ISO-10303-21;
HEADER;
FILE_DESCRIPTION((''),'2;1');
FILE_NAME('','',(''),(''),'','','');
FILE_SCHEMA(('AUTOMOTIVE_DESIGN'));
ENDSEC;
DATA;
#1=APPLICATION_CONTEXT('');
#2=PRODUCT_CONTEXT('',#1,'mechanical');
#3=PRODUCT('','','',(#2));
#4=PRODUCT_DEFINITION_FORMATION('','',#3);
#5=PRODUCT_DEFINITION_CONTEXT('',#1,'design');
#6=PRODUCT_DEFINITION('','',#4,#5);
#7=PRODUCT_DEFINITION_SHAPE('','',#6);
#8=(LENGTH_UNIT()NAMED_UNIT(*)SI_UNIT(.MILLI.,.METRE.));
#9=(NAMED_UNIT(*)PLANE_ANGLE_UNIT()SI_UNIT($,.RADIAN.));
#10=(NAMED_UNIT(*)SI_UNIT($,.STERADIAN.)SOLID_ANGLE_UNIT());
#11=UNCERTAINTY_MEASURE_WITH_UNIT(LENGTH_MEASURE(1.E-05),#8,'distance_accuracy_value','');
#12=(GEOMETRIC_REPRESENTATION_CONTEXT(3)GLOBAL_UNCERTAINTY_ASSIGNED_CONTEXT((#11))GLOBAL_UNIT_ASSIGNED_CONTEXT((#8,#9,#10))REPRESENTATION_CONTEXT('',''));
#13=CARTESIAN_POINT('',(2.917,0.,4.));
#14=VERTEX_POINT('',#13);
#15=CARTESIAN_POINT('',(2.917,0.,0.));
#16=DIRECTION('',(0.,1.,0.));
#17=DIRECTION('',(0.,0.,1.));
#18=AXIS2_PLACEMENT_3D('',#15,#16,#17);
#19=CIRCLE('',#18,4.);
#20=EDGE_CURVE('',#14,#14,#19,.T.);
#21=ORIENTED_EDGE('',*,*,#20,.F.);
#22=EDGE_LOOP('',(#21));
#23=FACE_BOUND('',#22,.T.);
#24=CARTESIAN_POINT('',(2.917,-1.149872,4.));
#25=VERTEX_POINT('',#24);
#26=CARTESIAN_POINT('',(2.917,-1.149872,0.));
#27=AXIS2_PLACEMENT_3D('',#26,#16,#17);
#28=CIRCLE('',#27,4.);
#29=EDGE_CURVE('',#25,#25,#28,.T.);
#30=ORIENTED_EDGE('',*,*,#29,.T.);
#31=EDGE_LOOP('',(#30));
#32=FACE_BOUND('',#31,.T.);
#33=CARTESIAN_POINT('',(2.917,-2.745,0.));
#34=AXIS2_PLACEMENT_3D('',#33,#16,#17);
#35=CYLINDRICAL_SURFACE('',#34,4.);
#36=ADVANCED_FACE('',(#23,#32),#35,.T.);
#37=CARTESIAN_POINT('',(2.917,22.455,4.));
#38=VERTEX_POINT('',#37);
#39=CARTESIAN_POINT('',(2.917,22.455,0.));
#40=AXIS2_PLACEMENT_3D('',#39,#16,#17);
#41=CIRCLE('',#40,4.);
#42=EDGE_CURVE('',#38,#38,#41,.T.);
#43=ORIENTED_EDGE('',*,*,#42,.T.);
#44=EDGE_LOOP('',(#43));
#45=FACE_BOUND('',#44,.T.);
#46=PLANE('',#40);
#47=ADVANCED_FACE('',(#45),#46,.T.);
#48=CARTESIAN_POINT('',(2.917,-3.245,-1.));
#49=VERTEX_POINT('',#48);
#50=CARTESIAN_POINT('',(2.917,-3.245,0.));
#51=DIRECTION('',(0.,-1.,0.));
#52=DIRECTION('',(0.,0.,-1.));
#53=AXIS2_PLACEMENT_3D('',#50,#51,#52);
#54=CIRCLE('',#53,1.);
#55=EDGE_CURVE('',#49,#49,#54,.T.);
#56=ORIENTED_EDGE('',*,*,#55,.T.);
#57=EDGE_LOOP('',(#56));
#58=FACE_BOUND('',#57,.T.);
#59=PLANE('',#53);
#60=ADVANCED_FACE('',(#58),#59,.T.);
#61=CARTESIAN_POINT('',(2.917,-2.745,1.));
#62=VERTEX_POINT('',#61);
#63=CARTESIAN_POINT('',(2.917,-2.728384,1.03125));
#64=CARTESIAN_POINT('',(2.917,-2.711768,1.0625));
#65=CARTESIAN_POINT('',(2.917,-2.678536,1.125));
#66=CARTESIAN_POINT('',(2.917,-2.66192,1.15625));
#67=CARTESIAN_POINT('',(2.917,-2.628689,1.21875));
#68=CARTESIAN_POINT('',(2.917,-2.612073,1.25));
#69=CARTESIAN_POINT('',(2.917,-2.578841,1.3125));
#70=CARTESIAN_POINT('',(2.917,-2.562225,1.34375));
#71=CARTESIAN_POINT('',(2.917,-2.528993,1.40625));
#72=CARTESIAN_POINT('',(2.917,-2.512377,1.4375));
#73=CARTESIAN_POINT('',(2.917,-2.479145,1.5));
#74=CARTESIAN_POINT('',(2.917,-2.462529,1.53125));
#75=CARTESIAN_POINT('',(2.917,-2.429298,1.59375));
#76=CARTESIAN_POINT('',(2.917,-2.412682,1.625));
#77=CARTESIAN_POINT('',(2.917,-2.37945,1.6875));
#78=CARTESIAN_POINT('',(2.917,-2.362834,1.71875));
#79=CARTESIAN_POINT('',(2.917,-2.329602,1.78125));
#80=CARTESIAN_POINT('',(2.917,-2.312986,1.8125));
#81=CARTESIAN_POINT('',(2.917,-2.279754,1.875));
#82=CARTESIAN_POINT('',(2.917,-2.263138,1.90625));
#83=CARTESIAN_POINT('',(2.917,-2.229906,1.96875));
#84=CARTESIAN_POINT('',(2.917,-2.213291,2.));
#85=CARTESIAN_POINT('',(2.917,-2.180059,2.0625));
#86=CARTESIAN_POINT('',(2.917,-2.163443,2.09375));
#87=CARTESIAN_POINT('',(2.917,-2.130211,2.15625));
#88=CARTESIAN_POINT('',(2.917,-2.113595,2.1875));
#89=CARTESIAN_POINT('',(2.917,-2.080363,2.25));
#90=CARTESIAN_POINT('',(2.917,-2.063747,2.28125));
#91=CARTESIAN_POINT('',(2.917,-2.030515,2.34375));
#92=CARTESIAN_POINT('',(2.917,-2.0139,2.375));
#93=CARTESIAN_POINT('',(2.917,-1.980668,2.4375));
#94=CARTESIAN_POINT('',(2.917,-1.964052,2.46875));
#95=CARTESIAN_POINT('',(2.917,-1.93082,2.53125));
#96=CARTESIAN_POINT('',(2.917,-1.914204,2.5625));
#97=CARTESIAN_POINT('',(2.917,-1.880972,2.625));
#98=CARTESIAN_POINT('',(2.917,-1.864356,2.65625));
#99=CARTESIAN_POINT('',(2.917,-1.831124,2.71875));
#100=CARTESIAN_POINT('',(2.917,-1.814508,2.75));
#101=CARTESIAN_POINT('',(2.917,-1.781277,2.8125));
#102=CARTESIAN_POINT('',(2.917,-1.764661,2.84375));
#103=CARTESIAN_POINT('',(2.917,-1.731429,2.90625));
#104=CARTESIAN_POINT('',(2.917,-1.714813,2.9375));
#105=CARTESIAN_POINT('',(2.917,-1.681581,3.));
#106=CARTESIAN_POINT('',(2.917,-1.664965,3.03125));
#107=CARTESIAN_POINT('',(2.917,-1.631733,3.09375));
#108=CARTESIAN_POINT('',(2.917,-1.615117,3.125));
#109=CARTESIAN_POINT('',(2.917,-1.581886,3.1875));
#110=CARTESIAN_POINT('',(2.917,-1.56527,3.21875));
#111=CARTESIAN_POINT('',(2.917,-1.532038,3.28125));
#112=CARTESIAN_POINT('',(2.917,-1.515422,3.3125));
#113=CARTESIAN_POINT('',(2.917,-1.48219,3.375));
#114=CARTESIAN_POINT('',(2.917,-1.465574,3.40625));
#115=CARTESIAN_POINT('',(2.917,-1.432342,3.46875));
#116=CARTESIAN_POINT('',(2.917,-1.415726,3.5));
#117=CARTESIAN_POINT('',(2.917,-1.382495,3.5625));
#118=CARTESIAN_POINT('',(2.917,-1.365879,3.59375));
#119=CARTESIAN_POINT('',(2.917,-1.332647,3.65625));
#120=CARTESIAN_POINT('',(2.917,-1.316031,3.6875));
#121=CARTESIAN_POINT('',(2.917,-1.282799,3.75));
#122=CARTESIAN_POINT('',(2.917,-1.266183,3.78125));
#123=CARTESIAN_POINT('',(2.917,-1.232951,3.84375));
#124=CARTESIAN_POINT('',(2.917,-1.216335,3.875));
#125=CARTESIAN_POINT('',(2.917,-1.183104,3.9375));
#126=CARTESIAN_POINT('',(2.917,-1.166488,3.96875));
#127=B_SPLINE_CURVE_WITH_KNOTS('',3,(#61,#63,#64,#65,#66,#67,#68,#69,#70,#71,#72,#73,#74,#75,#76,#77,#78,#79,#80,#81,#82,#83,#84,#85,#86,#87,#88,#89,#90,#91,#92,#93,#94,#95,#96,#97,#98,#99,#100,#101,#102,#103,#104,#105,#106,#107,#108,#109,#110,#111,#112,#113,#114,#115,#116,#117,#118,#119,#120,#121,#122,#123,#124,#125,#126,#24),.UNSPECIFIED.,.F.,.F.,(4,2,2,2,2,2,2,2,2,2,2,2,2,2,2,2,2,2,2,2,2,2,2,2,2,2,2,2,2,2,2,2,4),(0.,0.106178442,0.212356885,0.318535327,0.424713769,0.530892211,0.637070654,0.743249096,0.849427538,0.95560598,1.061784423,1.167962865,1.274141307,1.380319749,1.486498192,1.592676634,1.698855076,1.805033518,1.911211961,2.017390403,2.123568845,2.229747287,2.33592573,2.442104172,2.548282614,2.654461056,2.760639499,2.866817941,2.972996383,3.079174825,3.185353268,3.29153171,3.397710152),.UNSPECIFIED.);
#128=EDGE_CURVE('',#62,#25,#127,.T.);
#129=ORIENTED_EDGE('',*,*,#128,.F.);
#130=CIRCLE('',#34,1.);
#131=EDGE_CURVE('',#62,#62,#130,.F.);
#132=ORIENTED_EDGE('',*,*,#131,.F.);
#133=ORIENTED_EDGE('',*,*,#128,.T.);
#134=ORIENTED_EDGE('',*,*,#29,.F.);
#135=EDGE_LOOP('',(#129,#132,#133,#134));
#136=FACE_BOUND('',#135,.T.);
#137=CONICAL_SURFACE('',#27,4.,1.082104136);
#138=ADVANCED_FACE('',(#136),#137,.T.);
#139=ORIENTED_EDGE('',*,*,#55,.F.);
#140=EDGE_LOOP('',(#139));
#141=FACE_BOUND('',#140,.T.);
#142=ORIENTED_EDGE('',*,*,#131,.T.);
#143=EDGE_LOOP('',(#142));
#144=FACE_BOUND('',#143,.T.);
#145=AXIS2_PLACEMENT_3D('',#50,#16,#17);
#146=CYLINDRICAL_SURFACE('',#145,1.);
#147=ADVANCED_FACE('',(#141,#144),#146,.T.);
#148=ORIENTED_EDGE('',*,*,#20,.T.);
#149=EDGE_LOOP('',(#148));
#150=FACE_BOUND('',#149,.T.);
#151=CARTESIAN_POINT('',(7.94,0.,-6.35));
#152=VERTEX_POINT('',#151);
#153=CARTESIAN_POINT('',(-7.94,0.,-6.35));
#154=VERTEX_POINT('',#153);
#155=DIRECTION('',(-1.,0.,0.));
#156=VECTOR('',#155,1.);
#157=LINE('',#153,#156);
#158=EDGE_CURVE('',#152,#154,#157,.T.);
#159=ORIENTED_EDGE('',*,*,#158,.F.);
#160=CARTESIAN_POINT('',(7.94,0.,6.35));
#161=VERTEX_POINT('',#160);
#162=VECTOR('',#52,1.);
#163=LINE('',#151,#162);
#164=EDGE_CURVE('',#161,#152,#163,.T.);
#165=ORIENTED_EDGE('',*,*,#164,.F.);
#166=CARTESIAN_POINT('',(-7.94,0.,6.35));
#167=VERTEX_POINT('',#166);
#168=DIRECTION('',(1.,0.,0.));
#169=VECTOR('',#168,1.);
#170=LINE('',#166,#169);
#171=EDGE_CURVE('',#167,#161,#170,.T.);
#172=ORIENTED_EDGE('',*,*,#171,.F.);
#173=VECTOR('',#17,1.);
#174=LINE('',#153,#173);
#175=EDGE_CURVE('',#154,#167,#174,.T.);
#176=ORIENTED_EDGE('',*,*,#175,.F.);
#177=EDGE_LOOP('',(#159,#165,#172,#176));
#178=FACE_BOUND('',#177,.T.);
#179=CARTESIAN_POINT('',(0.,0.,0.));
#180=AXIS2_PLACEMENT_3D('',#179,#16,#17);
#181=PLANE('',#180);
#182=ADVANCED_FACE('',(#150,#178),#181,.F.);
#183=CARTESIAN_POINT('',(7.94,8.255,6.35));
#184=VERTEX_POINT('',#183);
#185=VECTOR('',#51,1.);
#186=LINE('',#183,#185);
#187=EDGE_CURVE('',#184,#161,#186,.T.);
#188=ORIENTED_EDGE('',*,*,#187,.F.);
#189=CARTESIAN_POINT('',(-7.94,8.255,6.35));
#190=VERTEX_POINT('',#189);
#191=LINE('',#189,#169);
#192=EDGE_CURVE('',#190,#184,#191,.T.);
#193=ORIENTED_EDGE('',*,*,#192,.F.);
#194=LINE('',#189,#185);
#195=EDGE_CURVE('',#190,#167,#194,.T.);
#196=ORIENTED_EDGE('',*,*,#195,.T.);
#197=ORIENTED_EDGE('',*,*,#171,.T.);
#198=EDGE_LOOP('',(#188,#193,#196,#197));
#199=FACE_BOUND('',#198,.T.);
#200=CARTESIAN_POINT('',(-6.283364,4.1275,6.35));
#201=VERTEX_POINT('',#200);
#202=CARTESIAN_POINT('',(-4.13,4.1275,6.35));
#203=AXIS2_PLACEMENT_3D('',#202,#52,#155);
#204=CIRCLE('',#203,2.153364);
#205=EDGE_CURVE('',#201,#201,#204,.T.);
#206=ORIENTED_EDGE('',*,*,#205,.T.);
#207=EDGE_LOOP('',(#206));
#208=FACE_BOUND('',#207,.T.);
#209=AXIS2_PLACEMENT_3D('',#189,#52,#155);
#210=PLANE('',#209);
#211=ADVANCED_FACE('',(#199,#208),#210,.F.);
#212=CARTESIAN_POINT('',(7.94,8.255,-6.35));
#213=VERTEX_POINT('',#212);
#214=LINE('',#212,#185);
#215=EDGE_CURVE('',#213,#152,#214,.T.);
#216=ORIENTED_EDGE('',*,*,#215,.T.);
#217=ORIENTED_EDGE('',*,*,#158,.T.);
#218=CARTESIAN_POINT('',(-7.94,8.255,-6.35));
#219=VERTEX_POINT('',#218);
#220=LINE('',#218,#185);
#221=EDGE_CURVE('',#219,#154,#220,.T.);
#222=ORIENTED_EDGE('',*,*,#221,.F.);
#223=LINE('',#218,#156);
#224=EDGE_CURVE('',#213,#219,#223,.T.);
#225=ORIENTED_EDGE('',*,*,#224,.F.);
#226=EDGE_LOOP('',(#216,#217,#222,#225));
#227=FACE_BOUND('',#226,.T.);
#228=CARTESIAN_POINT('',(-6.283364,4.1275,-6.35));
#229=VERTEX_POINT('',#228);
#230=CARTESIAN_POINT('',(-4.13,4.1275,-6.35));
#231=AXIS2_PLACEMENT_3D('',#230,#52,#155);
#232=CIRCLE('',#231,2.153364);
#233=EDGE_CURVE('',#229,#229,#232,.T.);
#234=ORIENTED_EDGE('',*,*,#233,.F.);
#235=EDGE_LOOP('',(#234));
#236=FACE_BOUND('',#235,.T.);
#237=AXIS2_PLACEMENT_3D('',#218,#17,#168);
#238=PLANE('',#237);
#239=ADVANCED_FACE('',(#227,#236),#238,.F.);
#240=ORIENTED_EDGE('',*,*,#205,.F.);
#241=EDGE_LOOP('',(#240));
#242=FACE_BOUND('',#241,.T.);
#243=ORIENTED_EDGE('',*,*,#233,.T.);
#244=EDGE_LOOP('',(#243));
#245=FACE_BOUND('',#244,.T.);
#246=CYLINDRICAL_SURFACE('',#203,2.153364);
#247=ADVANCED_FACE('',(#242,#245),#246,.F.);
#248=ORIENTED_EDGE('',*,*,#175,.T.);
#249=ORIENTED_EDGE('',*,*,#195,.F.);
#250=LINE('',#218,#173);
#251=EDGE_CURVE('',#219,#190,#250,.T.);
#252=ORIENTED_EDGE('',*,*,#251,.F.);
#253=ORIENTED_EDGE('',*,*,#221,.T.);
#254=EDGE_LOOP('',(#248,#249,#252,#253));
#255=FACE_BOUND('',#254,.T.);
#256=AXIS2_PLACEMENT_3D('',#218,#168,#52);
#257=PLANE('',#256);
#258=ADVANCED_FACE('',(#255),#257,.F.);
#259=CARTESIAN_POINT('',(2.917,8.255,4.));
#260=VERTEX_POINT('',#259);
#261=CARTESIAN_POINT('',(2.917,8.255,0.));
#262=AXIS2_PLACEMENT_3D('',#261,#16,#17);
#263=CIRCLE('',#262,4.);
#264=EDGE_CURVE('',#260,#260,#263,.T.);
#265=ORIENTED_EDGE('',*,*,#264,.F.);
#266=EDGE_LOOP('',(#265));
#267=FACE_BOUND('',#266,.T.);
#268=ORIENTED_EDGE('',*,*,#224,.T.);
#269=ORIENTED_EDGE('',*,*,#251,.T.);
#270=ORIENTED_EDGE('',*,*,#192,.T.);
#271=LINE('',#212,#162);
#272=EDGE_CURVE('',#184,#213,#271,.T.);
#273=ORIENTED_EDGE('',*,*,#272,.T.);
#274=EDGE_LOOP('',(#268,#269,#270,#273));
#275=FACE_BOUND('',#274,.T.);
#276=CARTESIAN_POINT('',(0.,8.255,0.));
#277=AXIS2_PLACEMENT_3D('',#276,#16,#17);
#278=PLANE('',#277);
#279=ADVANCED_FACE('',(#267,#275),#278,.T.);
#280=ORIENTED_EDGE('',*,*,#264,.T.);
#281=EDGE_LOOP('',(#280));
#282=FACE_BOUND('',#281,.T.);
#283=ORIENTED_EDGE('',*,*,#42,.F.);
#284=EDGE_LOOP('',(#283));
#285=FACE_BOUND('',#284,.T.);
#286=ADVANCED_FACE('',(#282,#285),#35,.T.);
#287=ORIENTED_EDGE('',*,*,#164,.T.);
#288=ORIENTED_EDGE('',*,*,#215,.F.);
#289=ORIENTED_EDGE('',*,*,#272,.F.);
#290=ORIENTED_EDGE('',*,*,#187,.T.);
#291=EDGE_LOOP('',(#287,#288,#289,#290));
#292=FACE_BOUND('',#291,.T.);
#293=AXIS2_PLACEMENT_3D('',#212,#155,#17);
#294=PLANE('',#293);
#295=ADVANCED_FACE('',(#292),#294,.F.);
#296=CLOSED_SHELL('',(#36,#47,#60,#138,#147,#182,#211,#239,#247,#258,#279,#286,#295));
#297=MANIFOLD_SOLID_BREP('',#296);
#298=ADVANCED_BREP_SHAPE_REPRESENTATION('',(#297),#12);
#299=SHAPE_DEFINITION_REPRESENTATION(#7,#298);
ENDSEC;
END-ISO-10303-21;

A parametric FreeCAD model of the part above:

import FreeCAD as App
import Part
import Sketcher

V = App.Vector
Q = App.Units.Quantity


def edges_at(feature, points):
    """Names of the edges that pass closest to the given points."""
    edges = feature.Shape.Edges
    near = lambda p: min(range(len(edges)), key=lambda i: edges[i].distToShape(Part.Vertex(*p))[0])
    return sorted({f"Edge{near(p) + 1}" for p in points})


def add_polygon(sketch, points):
    """Adds a closed chain of lines whose ends are joined by coincident constraints."""
    first, n = sketch.GeometryCount, len(points)
    for a, b in zip(points, points[1:] + points[:1]):
        sketch.addGeometry(Part.LineSegment(App.Vector(*a, 0), App.Vector(*b, 0)), False)
    for i in range(n):
        sketch.addConstraint(Sketcher.Constraint("Coincident", first + i, 2, first + (i + 1) % n, 1))

doc = App.newDocument("Part")
body = doc.addObject("PartDesign::Body", "Body")

sketch1 = body.newObject("Sketcher::SketchObject", "Sketch")
sketch1.AttachmentSupport = (doc.getObject("XZ_Plane"), [""])
sketch1.MapMode = "FlatFace"
add_polygon(sketch1, [(-7.94, -6.35), (-7.94, 6.35), (7.94, 6.35), (7.94, -6.35)])
sketch1.addConstraint(Sketcher.Constraint("Vertical", 0))
sketch1.addConstraint(Sketcher.Constraint("Horizontal", 1))
sketch1.addConstraint(Sketcher.Constraint("Vertical", 2))
sketch1.addConstraint(Sketcher.Constraint("Horizontal", 3))
sketch1.addConstraint(Sketcher.Constraint("Symmetric", 0, 2, 2, 2, -1, 1))
sketch1.addConstraint(Sketcher.Constraint("DistanceY", 0, 1, 0, 2, Q("12.7 mm")))
sketch1.addConstraint(Sketcher.Constraint("DistanceX", 1, 1, 1, 2, Q("15.88 mm")))
pad1 = body.newObject("PartDesign::Pad", "Pad")
pad1.Profile = sketch1
pad1.Length = 8.255
pad1.Reversed = True

sketch2 = body.newObject("Sketcher::SketchObject", "Sketch001")
sketch2.AttachmentSupport = (doc.getObject("XZ_Plane"), [""])
sketch2.MapMode = "FlatFace"
sketch2.AttachmentOffset = App.Placement(V(0, 0, -8.255), App.Rotation())
sketch2.addGeometry(Part.Circle(V(2.917, 0, 0), V(0, 0, 1), 4), False)
sketch2.addConstraint(Sketcher.Constraint("PointOnObject", 0, 3, -1))
sketch2.addConstraint(Sketcher.Constraint("Diameter", 0, Q("8 mm")))
sketch2.addConstraint(Sketcher.Constraint("DistanceX", -1, 1, 0, 3, Q("2.917 mm")))
pad2 = body.newObject("PartDesign::Pad", "Pad001")
pad2.Profile = sketch2
pad2.Type = "TwoLengths"
pad2.Length = 14.2
pad2.Length2 = 11
pad2.Reversed = True
doc.recompute()

chamfer = body.newObject("PartDesign::Chamfer", "Chamfer")
chamfer.Base = (pad2, edges_at(pad2, [(2.917, -2.745, -4)]))
chamfer.ChamferType = "Two distances"
chamfer.Size = 3
chamfer.Size2 = 1.595128
chamfer.FlipDirection = True

sketch3 = body.newObject("Sketcher::SketchObject", "Sketch002")
sketch3.AttachmentSupport = (doc.getObject("XZ_Plane"), [""])
sketch3.MapMode = "FlatFace"
sketch3.AttachmentOffset = App.Placement(V(0, 0, 2.745), App.Rotation())
sketch3.addGeometry(Part.Circle(V(2.917, 0, 0), V(0, 0, 1), 1), False)
sketch3.addConstraint(Sketcher.Constraint("PointOnObject", 0, 3, -1))
sketch3.addConstraint(Sketcher.Constraint("Diameter", 0, Q("2 mm")))
sketch3.addConstraint(Sketcher.Constraint("DistanceX", -1, 1, 0, 3, Q("2.917 mm")))
pad3 = body.newObject("PartDesign::Pad", "Pad002")
pad3.Profile = sketch3
pad3.Length = 0.5

sketch4 = body.newObject("Sketcher::SketchObject", "Sketch003")
sketch4.AttachmentSupport = (doc.getObject("XY_Plane"), [""])
sketch4.MapMode = "FlatFace"
sketch4.AttachmentOffset = App.Placement(V(0, 0, -6.35), App.Rotation())
sketch4.addGeometry(Part.Circle(V(-4.13, 4.1275, 0), V(0, 0, 1), 2.153364), False)
sketch4.addConstraint(Sketcher.Constraint("DistanceX", 0, 3, -1, 1, Q("4.13 mm")))
sketch4.addConstraint(Sketcher.Constraint("Diameter", 0, Q("4.306727 mm")))
sketch4.addConstraint(Sketcher.Constraint("DistanceY", -1, 1, 0, 3, Q("4.1275 mm")))
pocket1 = body.newObject("PartDesign::Pocket", "Pocket")
pocket1.Profile = sketch4
pocket1.Type = "ThroughAll"
pocket1.Reversed = True

doc.recompute()
